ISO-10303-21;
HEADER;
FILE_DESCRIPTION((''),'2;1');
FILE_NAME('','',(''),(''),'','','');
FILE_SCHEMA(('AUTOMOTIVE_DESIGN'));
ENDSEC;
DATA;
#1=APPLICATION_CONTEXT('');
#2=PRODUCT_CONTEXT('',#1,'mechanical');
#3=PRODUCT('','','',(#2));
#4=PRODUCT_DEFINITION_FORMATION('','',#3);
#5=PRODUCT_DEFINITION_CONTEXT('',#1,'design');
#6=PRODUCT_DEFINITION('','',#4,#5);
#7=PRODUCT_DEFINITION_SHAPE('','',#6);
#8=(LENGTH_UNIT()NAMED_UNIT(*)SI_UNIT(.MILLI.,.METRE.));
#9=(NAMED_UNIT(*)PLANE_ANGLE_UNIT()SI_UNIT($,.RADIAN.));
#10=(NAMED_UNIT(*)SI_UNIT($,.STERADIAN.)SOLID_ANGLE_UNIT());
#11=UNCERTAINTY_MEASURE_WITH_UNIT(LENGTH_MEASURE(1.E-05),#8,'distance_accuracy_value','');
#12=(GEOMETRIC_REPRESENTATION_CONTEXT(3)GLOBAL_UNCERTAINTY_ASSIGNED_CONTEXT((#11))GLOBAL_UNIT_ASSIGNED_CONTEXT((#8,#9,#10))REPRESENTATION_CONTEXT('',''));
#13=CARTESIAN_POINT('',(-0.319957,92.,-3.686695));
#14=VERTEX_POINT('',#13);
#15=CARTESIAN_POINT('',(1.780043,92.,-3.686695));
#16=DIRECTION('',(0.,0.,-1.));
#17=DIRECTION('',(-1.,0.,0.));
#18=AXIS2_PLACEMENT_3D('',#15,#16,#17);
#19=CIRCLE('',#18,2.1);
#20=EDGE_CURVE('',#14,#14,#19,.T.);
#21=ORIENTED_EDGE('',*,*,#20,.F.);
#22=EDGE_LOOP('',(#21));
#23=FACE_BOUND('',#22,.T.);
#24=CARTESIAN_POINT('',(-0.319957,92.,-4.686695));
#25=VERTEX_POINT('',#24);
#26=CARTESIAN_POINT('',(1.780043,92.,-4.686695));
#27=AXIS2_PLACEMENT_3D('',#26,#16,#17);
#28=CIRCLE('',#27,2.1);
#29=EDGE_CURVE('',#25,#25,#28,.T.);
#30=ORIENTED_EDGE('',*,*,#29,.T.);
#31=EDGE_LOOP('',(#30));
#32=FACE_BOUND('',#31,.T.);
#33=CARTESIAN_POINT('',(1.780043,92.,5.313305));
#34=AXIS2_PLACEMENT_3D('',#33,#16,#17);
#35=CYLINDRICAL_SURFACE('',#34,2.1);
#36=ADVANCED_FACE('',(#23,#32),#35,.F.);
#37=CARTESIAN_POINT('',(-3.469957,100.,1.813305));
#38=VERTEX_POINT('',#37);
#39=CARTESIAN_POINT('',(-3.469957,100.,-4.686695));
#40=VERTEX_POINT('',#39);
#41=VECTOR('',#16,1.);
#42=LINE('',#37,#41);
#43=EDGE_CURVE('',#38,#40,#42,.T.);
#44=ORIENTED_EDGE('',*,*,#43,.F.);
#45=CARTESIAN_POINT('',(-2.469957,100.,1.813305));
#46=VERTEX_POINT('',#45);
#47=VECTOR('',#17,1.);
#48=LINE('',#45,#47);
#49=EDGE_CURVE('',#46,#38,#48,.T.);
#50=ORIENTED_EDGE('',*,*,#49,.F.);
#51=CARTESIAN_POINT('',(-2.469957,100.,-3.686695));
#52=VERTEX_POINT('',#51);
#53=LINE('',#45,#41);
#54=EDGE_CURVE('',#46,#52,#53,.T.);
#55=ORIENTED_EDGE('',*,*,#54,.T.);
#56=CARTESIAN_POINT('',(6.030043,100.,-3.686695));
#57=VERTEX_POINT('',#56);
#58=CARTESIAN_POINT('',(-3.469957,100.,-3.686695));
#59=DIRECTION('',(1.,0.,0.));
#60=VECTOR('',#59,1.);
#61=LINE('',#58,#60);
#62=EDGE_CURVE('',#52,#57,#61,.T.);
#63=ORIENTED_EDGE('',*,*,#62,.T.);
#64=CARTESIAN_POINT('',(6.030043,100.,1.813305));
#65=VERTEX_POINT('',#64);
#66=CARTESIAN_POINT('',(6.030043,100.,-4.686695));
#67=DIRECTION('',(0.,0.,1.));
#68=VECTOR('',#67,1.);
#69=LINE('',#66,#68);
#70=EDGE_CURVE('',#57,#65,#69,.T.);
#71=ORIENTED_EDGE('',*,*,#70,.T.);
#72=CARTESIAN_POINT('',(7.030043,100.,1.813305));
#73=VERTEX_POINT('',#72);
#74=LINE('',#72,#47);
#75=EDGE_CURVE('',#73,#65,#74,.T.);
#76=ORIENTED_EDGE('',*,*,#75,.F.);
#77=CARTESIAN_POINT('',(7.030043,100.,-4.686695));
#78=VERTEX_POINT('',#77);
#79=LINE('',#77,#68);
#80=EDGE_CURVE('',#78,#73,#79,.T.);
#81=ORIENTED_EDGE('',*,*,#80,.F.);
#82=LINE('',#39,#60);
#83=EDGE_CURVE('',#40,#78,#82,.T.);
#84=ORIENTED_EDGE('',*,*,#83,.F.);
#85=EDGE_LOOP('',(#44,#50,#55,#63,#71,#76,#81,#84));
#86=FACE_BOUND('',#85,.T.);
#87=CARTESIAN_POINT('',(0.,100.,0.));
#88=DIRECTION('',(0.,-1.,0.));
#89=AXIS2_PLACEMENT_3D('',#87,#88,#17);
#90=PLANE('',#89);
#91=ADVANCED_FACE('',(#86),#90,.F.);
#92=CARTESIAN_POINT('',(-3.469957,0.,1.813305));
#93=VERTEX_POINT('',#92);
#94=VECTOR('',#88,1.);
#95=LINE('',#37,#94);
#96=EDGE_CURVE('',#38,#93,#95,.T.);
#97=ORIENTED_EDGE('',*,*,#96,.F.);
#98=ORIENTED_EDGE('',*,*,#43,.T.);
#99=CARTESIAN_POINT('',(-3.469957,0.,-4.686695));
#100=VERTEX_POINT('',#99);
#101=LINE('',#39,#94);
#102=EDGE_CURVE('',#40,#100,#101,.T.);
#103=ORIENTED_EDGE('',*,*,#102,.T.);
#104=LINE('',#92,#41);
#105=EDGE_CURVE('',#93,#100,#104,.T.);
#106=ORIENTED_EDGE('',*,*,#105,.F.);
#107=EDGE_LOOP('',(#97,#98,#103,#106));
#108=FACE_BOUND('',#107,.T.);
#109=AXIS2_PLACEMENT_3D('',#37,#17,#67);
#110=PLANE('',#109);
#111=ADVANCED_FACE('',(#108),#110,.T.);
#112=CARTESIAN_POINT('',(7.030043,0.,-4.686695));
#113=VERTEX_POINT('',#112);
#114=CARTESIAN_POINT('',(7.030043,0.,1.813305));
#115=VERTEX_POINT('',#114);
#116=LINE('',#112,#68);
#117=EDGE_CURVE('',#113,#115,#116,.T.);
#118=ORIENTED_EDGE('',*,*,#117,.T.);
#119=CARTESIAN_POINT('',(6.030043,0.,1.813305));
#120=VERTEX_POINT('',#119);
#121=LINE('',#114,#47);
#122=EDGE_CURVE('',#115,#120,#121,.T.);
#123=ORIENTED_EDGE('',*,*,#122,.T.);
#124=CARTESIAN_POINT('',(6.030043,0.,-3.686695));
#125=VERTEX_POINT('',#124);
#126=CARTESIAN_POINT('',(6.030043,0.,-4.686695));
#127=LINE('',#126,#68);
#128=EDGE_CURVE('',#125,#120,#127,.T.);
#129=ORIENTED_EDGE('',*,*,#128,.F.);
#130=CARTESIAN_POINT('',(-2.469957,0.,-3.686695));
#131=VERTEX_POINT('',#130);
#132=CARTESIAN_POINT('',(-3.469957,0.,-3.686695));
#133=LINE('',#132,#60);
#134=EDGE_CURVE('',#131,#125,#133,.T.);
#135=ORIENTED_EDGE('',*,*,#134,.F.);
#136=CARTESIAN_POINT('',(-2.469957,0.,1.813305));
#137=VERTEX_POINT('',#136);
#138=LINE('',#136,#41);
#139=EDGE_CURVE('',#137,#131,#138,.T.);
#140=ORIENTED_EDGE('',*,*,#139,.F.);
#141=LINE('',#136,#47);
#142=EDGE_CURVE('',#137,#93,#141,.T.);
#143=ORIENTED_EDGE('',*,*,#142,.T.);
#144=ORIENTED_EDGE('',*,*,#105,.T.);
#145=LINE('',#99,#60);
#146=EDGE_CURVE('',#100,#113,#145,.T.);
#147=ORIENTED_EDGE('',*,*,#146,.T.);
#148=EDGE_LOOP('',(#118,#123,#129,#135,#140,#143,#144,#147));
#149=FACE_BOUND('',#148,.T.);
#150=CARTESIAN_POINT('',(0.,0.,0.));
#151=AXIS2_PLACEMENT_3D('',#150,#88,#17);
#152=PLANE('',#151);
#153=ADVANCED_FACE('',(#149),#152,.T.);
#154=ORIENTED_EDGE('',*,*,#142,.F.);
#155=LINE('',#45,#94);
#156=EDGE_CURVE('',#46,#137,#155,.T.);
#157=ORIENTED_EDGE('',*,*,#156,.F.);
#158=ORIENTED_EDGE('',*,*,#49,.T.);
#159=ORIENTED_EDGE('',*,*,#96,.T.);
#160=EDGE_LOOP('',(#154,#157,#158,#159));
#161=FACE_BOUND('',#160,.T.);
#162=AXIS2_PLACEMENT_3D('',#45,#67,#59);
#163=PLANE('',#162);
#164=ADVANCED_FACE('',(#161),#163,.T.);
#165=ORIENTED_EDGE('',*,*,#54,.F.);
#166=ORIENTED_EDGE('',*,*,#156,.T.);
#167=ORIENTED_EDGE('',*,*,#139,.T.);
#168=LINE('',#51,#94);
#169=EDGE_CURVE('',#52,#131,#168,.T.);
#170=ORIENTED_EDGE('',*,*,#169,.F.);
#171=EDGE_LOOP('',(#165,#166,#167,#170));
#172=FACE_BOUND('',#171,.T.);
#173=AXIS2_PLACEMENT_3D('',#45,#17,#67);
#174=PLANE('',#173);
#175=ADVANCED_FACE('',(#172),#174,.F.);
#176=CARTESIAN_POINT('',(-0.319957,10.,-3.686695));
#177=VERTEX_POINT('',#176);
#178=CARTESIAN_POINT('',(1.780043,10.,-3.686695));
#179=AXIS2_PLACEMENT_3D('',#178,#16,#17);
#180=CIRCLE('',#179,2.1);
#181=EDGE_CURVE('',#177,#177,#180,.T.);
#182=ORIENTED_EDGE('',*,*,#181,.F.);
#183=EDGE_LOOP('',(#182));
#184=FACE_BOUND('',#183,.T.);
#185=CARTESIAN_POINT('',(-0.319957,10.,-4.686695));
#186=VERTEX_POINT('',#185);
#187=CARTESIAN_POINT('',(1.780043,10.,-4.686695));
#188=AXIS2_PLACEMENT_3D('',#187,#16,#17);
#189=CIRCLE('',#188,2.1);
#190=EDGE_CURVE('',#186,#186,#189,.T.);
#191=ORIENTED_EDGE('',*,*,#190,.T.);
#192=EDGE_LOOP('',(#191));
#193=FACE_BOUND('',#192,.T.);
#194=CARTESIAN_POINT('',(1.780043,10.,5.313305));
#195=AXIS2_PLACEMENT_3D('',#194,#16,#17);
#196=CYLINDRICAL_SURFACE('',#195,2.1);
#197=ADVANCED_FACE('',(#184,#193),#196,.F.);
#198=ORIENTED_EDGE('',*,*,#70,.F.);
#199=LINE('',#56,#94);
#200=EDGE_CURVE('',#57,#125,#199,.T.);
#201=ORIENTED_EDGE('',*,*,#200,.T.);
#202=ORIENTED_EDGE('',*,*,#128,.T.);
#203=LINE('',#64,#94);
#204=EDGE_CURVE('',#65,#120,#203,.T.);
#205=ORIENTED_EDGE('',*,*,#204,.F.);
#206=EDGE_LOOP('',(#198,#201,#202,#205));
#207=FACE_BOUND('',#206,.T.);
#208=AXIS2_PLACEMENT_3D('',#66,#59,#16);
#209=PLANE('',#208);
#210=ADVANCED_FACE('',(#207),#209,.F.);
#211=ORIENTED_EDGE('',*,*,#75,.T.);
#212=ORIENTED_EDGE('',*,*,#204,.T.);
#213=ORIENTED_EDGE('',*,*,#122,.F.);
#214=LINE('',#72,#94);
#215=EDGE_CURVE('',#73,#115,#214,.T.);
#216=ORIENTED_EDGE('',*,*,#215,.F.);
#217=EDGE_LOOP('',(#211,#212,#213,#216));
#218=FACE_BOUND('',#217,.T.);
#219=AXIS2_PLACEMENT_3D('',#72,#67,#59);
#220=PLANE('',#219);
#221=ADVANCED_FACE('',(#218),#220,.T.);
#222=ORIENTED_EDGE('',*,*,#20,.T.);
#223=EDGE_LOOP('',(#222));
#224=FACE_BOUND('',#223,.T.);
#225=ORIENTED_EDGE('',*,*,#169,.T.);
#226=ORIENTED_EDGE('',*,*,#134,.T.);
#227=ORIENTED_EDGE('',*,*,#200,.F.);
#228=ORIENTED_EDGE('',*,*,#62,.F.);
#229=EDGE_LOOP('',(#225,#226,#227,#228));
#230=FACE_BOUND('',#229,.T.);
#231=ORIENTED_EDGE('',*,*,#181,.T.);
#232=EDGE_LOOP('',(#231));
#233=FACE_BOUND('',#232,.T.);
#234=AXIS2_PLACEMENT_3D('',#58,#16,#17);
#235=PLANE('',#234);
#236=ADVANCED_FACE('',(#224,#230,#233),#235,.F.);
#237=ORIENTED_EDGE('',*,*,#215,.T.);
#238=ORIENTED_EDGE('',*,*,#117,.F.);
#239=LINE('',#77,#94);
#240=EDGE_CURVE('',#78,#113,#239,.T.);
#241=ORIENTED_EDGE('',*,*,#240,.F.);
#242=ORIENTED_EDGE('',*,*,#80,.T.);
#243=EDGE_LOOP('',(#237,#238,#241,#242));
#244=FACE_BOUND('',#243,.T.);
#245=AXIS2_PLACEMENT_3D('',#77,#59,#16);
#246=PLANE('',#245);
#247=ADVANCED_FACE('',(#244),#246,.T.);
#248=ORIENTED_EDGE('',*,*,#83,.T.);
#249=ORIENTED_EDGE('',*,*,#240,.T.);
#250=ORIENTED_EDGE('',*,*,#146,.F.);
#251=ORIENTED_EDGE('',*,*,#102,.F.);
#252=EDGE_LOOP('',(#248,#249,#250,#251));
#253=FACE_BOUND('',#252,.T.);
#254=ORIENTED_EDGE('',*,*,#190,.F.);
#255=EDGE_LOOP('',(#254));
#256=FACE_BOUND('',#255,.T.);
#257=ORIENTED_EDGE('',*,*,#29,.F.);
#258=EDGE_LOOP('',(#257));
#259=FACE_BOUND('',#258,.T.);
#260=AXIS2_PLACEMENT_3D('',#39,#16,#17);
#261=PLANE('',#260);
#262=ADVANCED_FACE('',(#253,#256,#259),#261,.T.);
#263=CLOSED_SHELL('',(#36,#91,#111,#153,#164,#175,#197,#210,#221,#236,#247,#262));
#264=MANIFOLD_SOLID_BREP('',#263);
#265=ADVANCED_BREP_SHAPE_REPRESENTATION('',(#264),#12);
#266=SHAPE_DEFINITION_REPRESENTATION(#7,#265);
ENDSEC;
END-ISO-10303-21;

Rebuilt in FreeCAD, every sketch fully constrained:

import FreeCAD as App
import Part
import Sketcher
from FreeCAD import Vector

doc = App.newDocument("Part")
body = doc.addObject("PartDesign::Body", "Body")

sketch1 = body.newObject("Sketcher::SketchObject", "Sketch")
sketch1.AttachmentSupport = (doc.getObject("XZ_Plane"), [""])
sketch1.MapMode = "FlatFace"
sketch1.addGeometry([
    Part.LineSegment(Vector(-3.5, -4.7, 0), Vector(-3.5, 1.8, 0)),
    Part.LineSegment(Vector(-3.5, 1.8, 0), Vector(-2.5, 1.8, 0)),
    Part.LineSegment(Vector(-2.5, 1.8, 0), Vector(-2.5, -3.7, 0)),
    Part.LineSegment(Vector(-2.5, -3.7, 0), Vector(6, -3.7, 0)),
    Part.LineSegment(Vector(6, -3.7, 0), Vector(6, 1.8, 0)),
    Part.LineSegment(Vector(6, 1.8, 0), Vector(7, 1.8, 0)),
    Part.LineSegment(Vector(7, 1.8, 0), Vector(7, -4.7, 0)),
    Part.LineSegment(Vector(7, -4.7, 0), Vector(-3.5, -4.7, 0)),
], False)
sketch1.addConstraint([
    Sketcher.Constraint("Coincident", 0, 2, 1, 1),
    Sketcher.Constraint("Coincident", 1, 2, 2, 1),
    Sketcher.Constraint("Coincident", 2, 2, 3, 1),
    Sketcher.Constraint("Coincident", 3, 2, 4, 1),
    Sketcher.Constraint("Coincident", 4, 2, 5, 1),
    Sketcher.Constraint("Coincident", 5, 2, 6, 1),
    Sketcher.Constraint("Coincident", 6, 2, 7, 1),
    Sketcher.Constraint("Coincident", 7, 2, 0, 1),
    Sketcher.Constraint("Vertical", 0),
    Sketcher.Constraint("Horizontal", 1),
    Sketcher.Constraint("Vertical", 2),
    Sketcher.Constraint("Horizontal", 3),
    Sketcher.Constraint("Vertical", 4),
    Sketcher.Constraint("Horizontal", 5),
    Sketcher.Constraint("Vertical", 6),
    Sketcher.Constraint("Horizontal", 7),
    Sketcher.Constraint("Horizontal", 1, 2, 4, 2),
    Sketcher.Constraint("Equal", 1, 5),
    Sketcher.Constraint("DistanceX", 1, 1, 1, 2, 1.0),
    Sketcher.Constraint("DistanceX", 3, 1, 3, 2, 8.5),
    Sketcher.Constraint("DistanceY", 0, 1, 0, 2, 6.5),
    Sketcher.Constraint("DistanceY", 2, 2, 2, 1, 5.5),
    Sketcher.Constraint("DistanceX", 0, 2, -1, 1, 3.469957),
    Sketcher.Constraint("DistanceY", -1, 1, 0, 2, 1.813305),
])
pad1 = body.newObject("PartDesign::Pad", "Pad")
pad1.Profile = sketch1
pad1.Length = 100
pad1.Reversed = True

sketch2 = body.newObject("Sketcher::SketchObject", "Sketch001")
sketch2.AttachmentSupport = (doc.getObject("XY_Plane"), [""])
sketch2.MapMode = "FlatFace"
sketch2.AttachmentOffset = App.Placement(Vector(0, 0, -4.686695), App.Rotation())
sketch2.addGeometry([
    Part.Circle(Vector(1.8, 92, 0), Vector(0, 0, 1), 2.1),
    Part.Circle(Vector(1.8, 10, 0), Vector(0, 0, 1), 2.1),
], False)
sketch2.addConstraint([
    Sketcher.Constraint("Equal", 0, 1),
    Sketcher.Constraint("Vertical", 0, 3, 1, 3),
    Sketcher.Constraint("Diameter", 0, 4.2),
    Sketcher.Constraint("DistanceY", -1, 1, 0, 3, 92.0),
    Sketcher.Constraint("DistanceY", -1, 1, 1, 3, 10.0),
    Sketcher.Constraint("DistanceX", -1, 1, 0, 3, 1.780043),
])
pocket1 = body.newObject("PartDesign::Pocket", "Pocket")
pocket1.Profile = sketch2
pocket1.Length = 10
pocket1.Reversed = True

doc.recompute()
